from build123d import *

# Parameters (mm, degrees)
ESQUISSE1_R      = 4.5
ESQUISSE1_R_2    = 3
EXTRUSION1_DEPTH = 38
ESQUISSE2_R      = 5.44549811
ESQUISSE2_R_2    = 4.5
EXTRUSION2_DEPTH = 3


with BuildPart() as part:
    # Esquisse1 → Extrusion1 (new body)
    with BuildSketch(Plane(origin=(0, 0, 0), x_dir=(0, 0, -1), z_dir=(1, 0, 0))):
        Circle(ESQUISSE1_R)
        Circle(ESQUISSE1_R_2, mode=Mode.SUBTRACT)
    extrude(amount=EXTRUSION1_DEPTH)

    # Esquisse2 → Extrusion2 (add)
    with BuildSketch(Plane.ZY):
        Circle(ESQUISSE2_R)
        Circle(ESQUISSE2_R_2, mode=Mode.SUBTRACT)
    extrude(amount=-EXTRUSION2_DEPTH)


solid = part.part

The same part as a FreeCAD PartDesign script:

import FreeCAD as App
import Part
import Sketcher

V = App.Vector
Q = App.Units.Quantity

doc = App.newDocument("Part")
body = doc.addObject("PartDesign::Body", "Body")

sketch1 = body.newObject("Sketcher::SketchObject", "Sketch")
sketch1.AttachmentSupport = (doc.getObject("YZ_Plane"), [""])
sketch1.MapMode = "FlatFace"
sketch1.addGeometry([
    Part.Circle(V(0, 0, 0), V(0, 0, 1), 4.5),
    Part.Circle(V(0, 0, 0), V(0, 0, 1), 3),
], False)
sketch1.addConstraint([
    Sketcher.Constraint("Coincident", 0, 3, -1, 1),
    Sketcher.Constraint("Coincident", 1, 3, -1, 1),
    Sketcher.Constraint("Diameter", 0, Q("9 mm")),
    Sketcher.Constraint("Diameter", 1, Q("6 mm")),
])
pad1 = body.newObject("PartDesign::Pad", "Pad")
pad1.Profile = sketch1
pad1.Length = 38

sketch2 = body.newObject("Sketcher::SketchObject", "Sketch001")
sketch2.AttachmentSupport = (doc.getObject("YZ_Plane"), [""])
sketch2.MapMode = "FlatFace"
sketch2.addGeometry([
    Part.Circle(V(0, 0, 0), V(0, 0, 1), 5.4),
    Part.Circle(V(0, 0, 0), V(0, 0, 1), 4.5),
], False)
sketch2.addConstraint([
    Sketcher.Constraint("Coincident", 0, 3, -1, 1),
    Sketcher.Constraint("Coincident", 1, 3, -1, 1),
    Sketcher.Constraint("Diameter", 1, Q("9 mm")),
    Sketcher.Constraint("Diameter", 0, Q("10.890996 mm")),
])
pad2 = body.newObject("PartDesign::Pad", "Pad001")
pad2.Profile = sketch2
pad2.Length = 3

doc.recompute()
